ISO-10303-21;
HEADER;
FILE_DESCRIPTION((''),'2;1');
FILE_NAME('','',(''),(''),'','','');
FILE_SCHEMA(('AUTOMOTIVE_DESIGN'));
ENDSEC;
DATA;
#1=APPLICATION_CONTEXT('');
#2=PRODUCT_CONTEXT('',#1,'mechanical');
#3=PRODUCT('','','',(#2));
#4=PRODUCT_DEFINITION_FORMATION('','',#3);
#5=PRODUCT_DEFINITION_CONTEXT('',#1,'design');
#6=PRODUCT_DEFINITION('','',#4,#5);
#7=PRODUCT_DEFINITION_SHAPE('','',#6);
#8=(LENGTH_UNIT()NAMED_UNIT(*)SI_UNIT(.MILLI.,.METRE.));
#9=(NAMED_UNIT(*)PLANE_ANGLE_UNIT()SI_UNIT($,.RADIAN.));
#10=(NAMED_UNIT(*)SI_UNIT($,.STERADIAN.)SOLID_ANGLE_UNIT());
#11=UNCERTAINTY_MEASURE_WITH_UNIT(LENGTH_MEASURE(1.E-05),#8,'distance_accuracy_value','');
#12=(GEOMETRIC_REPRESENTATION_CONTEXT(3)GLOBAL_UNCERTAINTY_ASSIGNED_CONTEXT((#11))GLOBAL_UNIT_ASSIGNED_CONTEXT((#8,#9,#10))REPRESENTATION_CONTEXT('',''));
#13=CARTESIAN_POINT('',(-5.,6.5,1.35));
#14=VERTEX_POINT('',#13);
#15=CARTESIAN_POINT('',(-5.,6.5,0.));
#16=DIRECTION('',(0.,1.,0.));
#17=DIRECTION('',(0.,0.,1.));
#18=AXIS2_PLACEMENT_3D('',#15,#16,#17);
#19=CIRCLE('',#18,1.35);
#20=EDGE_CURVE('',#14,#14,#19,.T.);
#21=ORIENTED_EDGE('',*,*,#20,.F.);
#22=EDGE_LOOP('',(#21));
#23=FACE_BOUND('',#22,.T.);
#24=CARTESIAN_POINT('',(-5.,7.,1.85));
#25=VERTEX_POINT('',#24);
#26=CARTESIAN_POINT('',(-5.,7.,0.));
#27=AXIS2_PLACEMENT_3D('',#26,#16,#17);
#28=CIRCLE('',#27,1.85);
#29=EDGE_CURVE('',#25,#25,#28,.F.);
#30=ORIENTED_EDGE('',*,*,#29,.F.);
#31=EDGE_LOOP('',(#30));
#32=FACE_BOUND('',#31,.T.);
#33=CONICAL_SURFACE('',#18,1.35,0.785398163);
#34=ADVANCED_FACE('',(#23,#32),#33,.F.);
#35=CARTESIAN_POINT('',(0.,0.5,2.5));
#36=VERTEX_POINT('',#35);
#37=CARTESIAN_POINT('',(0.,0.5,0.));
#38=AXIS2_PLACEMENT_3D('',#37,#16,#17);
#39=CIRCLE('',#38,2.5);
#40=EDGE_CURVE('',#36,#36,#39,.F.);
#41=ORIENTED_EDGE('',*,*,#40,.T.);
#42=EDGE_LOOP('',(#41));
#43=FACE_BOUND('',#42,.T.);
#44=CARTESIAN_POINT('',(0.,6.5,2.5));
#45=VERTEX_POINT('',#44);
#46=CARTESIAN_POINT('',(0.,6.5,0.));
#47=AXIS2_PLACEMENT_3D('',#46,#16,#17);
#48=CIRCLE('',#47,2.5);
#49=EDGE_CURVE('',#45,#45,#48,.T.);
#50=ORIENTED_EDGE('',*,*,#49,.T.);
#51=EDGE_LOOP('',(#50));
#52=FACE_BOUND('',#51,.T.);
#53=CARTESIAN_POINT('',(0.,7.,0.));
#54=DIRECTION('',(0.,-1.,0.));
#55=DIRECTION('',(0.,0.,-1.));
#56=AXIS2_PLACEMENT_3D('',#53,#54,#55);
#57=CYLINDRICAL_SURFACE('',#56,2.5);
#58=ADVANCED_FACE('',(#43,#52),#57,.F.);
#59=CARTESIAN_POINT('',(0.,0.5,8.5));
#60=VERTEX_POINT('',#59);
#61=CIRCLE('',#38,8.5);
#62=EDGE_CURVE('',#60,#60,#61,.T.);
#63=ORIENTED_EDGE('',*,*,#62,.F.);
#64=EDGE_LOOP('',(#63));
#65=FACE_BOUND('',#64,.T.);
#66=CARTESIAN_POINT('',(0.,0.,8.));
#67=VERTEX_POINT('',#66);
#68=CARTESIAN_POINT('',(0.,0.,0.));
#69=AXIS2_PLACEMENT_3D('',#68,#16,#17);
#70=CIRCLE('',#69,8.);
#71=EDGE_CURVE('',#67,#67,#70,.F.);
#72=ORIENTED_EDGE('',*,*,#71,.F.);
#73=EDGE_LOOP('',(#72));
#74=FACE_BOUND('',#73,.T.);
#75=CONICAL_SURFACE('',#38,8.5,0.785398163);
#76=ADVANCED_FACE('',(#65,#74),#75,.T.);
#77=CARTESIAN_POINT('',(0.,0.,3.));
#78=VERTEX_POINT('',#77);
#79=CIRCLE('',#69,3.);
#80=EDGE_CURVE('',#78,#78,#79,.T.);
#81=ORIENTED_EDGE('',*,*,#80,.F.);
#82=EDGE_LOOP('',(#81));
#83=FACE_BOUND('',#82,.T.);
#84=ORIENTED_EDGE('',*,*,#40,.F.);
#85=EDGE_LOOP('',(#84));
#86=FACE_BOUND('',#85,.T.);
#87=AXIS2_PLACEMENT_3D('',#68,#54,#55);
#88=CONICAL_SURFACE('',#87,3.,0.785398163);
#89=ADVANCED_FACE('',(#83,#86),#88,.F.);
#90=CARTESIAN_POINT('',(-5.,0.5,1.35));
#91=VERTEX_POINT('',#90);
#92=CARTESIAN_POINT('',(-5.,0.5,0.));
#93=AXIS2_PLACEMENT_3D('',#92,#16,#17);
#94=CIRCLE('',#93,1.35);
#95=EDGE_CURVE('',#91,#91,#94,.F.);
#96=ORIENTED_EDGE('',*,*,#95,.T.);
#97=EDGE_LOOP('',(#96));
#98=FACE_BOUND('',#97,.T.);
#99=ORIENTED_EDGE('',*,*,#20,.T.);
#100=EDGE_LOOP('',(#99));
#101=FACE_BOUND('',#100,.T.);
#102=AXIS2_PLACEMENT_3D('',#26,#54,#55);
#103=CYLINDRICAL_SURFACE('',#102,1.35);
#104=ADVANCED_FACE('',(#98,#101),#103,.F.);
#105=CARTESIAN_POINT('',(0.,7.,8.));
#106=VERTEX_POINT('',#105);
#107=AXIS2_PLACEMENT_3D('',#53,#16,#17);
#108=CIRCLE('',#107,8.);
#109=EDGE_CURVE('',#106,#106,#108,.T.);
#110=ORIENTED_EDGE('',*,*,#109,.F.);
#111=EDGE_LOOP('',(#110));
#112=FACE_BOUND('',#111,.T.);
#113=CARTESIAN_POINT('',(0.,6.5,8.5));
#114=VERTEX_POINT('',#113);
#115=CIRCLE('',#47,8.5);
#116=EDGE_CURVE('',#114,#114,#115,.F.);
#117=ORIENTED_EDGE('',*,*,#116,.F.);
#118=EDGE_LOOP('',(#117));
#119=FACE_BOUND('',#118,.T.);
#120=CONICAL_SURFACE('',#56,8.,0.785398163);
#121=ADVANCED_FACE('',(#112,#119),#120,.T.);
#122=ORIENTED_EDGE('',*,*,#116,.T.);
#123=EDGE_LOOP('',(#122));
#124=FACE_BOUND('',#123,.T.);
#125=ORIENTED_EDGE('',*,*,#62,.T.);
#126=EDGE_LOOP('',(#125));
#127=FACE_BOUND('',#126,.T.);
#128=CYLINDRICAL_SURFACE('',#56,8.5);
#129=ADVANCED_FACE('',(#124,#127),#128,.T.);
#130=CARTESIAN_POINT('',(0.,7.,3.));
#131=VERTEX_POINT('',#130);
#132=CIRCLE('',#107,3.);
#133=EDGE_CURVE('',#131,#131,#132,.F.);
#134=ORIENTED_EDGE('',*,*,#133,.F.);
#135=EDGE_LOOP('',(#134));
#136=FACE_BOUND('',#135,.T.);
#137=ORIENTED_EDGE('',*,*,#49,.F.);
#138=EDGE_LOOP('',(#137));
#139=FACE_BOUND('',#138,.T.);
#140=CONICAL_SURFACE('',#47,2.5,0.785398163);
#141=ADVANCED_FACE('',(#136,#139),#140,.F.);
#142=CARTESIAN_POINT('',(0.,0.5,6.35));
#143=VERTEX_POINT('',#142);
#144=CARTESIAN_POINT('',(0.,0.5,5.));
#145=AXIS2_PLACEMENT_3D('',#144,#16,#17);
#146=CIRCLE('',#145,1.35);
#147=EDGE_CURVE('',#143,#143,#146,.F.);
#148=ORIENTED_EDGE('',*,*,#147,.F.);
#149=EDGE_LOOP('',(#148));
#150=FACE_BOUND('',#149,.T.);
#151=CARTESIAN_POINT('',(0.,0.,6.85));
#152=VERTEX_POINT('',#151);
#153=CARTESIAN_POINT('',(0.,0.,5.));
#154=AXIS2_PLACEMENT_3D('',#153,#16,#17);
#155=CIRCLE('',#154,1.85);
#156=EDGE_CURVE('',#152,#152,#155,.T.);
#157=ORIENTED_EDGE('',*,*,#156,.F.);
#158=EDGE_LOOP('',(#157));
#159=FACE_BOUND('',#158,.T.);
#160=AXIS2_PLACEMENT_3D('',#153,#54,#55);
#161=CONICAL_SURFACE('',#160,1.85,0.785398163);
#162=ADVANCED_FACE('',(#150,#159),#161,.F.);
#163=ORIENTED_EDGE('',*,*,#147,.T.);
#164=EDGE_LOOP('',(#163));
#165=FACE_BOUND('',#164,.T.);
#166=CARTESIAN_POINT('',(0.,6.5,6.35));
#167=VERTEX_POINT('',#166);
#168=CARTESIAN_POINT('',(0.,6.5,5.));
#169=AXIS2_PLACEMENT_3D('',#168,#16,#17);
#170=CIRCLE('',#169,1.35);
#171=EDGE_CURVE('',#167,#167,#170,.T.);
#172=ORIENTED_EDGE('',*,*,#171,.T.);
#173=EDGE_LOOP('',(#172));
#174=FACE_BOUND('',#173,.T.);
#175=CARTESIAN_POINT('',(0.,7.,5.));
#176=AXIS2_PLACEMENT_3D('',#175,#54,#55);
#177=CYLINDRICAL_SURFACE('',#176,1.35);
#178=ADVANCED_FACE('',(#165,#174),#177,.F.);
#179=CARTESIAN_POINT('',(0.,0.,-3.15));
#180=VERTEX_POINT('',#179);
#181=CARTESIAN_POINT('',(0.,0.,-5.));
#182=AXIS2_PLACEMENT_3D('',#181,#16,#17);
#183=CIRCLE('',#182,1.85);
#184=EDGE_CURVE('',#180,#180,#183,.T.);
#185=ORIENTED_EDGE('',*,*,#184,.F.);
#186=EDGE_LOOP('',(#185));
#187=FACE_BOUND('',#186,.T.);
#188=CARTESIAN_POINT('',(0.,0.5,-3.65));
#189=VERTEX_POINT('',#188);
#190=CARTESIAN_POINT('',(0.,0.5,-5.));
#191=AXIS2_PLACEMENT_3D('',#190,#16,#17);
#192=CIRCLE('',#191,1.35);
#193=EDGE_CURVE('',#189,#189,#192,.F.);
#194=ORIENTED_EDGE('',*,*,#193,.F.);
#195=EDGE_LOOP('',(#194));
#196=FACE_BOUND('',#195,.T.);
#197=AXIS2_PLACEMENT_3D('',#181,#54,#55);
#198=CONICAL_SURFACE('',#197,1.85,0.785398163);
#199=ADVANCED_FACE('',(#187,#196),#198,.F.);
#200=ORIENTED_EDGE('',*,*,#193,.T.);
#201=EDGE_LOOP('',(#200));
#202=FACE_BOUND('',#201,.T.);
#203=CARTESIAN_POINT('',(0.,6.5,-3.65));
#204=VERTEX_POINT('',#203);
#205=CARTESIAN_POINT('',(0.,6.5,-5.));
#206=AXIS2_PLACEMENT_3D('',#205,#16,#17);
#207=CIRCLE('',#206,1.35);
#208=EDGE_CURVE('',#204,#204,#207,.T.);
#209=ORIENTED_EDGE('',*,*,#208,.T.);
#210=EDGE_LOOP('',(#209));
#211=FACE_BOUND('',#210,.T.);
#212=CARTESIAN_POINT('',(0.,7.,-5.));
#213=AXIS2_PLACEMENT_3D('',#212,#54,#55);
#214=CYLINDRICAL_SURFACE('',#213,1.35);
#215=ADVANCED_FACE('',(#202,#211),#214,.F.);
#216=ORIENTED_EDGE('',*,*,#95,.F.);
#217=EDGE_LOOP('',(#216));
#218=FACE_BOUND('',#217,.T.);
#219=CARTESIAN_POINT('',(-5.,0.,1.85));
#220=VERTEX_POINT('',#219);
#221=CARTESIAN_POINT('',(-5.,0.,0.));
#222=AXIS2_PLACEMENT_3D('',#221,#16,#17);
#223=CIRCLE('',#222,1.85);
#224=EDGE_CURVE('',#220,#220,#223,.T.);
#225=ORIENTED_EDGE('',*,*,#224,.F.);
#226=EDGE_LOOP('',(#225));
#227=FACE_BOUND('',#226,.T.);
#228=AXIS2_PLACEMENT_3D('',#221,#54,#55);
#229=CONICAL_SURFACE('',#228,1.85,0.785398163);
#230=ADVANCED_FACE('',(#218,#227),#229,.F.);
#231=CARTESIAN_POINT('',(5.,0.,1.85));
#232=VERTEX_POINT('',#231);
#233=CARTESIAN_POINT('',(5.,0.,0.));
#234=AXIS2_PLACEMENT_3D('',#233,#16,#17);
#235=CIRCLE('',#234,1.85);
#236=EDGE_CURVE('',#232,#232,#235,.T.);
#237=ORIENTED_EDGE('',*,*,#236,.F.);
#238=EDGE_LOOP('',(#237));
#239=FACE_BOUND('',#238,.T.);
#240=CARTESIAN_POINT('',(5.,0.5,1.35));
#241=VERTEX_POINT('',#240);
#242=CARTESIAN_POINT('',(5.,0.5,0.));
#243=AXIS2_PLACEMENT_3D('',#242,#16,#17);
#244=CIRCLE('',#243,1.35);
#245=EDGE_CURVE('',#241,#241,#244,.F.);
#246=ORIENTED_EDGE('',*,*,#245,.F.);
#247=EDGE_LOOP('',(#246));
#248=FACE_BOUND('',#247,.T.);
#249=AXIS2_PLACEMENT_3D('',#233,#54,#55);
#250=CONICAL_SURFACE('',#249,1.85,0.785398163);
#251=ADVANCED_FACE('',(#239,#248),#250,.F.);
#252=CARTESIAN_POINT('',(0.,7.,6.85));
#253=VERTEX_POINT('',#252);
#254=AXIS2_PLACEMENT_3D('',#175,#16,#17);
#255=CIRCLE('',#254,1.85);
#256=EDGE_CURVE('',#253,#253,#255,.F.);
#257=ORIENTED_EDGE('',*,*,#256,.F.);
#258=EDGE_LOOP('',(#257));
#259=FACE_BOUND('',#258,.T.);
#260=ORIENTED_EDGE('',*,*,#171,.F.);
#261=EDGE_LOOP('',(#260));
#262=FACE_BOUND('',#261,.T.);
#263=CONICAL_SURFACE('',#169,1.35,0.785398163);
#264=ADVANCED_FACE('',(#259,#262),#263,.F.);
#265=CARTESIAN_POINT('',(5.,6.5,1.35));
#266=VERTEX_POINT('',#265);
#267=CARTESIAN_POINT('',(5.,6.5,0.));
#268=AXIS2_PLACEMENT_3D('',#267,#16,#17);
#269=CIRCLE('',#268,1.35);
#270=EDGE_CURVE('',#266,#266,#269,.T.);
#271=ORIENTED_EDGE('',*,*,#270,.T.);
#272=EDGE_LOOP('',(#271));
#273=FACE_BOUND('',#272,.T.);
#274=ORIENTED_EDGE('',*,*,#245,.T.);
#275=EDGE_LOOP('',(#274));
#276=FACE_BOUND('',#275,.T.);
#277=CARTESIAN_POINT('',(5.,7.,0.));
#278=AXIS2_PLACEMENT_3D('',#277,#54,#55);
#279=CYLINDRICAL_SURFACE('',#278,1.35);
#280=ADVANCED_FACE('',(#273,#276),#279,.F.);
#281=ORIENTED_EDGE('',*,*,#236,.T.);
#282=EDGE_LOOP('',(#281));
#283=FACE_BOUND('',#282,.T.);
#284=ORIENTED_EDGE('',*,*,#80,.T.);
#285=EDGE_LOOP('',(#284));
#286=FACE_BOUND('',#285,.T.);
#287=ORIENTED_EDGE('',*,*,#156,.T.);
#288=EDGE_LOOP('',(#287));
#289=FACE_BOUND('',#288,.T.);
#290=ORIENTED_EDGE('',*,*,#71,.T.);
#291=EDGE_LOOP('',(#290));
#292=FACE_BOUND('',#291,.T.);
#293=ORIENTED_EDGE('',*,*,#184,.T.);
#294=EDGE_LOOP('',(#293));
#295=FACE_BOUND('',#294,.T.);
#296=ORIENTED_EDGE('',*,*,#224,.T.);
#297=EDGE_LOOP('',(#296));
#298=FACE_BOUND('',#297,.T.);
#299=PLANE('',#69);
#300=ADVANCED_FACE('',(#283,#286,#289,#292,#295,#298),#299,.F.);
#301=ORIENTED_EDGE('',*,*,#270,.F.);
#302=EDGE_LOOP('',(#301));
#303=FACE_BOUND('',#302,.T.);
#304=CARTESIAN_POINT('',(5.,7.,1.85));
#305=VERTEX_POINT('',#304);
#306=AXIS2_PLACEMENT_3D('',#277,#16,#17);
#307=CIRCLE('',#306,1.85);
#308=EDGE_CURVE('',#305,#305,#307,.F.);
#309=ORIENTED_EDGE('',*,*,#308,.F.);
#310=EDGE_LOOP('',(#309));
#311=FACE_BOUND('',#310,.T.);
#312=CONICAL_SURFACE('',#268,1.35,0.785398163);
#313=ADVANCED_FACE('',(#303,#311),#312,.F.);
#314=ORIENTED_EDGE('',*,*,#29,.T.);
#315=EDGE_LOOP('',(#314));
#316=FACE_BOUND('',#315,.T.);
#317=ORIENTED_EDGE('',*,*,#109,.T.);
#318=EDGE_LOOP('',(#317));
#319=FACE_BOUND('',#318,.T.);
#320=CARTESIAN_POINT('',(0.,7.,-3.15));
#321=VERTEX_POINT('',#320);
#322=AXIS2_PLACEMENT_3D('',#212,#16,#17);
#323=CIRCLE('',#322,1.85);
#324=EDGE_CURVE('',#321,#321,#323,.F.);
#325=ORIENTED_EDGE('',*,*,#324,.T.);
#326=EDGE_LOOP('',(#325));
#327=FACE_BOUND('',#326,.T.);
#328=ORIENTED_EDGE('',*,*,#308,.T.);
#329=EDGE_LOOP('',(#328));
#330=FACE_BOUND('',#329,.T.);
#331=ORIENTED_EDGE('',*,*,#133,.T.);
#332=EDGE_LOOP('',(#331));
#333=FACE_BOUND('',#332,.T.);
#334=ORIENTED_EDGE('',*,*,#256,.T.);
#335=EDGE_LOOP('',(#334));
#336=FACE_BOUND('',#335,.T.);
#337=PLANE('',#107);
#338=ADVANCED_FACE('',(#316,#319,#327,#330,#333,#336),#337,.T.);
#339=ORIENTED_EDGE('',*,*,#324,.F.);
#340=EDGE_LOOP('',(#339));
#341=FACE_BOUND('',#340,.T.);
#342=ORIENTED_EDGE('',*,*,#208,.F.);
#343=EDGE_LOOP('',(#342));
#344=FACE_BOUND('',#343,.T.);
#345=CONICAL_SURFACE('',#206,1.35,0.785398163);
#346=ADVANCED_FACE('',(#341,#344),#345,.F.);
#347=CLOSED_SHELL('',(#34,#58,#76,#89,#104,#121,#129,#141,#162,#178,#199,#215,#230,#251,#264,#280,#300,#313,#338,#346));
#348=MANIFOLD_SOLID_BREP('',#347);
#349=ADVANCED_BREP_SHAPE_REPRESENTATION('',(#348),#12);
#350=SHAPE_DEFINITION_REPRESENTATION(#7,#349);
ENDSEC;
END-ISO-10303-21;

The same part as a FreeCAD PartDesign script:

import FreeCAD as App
import Part
import Sketcher
from FreeCAD import Vector


def edges_at(feature, points):
    """Names of the edges that pass closest to the given points."""
    edges = feature.Shape.Edges
    near = lambda p: min(range(len(edges)), key=lambda i: edges[i].distToShape(Part.Vertex(*p))[0])
    return sorted({f"Edge{near(p) + 1}" for p in points})

doc = App.newDocument("Part")
body = doc.addObject("PartDesign::Body", "Body")

# Sketch on XZ plane
sketch1 = body.newObject("Sketcher::SketchObject", "Sketch")
sketch1.AttachmentSupport = (doc.getObject("XZ_Plane"), [""])
sketch1.MapMode = "FlatFace"
sketch1.addGeometry(Part.Circle(Vector(0, 0, 0), Vector(0, 0, 1), 8.5), False)
sketch1.addGeometry(Part.Circle(Vector(0, -5, 0), Vector(0, 0, 1), 1.4), False)
sketch1.addGeometry(Part.Circle(Vector(-5, 0, 0), Vector(0, 0, 1), 1.4), False)
sketch1.addGeometry(Part.Circle(Vector(0, 0, 0), Vector(0, 0, 1), 2.5), False)
sketch1.addGeometry(Part.Circle(Vector(5, 0, 0), Vector(0, 0, 1), 1.4), False)
sketch1.addGeometry(Part.Circle(Vector(0, 5, 0), Vector(0, 0, 1), 1.4), False)
sketch1.addConstraint(Sketcher.Constraint("Coincident", 0, 3, -1, 1))
sketch1.addConstraint(Sketcher.Constraint("Coincident", 3, 3, -1, 1))
sketch1.addConstraint(Sketcher.Constraint("Equal", 1, 2))
sketch1.addConstraint(Sketcher.Constraint("Equal", 2, 4))
sketch1.addConstraint(Sketcher.Constraint("Equal", 4, 5))
sketch1.addConstraint(Sketcher.Constraint("Symmetric", 2, 3, 4, 3, -1, 1))
sketch1.addConstraint(Sketcher.Constraint("Symmetric", 1, 3, 5, 3, -1, 1))
sketch1.addConstraint(Sketcher.Constraint("PointOnObject", 1, 3, -2))
sketch1.addConstraint(Sketcher.Constraint("PointOnObject", 2, 3, -1))
sketch1.addConstraint(Sketcher.Constraint("Diameter", 0, 17.0))
sketch1.addConstraint(Sketcher.Constraint("Diameter", 3, 5.0))
sketch1.addConstraint(Sketcher.Constraint("Diameter", 1, 2.7))
sketch1.addConstraint(Sketcher.Constraint("DistanceY", 1, 3, -1, 1, 5.0))
sketch1.addConstraint(Sketcher.Constraint("DistanceX", 2, 3, -1, 1, 5.0))
pad1 = body.newObject("PartDesign::Pad", "Pad")
pad1.Profile = sketch1
pad1.Length = 7
pad1.Reversed = True
doc.recompute()

chamfer = body.newObject("PartDesign::Chamfer", "Chamfer")
chamfer.Base = (pad1, edges_at(pad1, [
    (0, 0, -6.35),
    (0, 7, -6.35),
    (5, 0, -1.35),
    (5, 7, -1.35),
    (0, 0, -8.5),
    (0, 0, 3.65),
    (0, 7, 3.65),
    (0, 7, -8.5),
    (-5, 0, -1.35),
    (-5, 7, -1.35),
    (0, 0, -2.5),
    (0, 7, -2.5),
]))
chamfer.Size = 0.5

doc.recompute()
